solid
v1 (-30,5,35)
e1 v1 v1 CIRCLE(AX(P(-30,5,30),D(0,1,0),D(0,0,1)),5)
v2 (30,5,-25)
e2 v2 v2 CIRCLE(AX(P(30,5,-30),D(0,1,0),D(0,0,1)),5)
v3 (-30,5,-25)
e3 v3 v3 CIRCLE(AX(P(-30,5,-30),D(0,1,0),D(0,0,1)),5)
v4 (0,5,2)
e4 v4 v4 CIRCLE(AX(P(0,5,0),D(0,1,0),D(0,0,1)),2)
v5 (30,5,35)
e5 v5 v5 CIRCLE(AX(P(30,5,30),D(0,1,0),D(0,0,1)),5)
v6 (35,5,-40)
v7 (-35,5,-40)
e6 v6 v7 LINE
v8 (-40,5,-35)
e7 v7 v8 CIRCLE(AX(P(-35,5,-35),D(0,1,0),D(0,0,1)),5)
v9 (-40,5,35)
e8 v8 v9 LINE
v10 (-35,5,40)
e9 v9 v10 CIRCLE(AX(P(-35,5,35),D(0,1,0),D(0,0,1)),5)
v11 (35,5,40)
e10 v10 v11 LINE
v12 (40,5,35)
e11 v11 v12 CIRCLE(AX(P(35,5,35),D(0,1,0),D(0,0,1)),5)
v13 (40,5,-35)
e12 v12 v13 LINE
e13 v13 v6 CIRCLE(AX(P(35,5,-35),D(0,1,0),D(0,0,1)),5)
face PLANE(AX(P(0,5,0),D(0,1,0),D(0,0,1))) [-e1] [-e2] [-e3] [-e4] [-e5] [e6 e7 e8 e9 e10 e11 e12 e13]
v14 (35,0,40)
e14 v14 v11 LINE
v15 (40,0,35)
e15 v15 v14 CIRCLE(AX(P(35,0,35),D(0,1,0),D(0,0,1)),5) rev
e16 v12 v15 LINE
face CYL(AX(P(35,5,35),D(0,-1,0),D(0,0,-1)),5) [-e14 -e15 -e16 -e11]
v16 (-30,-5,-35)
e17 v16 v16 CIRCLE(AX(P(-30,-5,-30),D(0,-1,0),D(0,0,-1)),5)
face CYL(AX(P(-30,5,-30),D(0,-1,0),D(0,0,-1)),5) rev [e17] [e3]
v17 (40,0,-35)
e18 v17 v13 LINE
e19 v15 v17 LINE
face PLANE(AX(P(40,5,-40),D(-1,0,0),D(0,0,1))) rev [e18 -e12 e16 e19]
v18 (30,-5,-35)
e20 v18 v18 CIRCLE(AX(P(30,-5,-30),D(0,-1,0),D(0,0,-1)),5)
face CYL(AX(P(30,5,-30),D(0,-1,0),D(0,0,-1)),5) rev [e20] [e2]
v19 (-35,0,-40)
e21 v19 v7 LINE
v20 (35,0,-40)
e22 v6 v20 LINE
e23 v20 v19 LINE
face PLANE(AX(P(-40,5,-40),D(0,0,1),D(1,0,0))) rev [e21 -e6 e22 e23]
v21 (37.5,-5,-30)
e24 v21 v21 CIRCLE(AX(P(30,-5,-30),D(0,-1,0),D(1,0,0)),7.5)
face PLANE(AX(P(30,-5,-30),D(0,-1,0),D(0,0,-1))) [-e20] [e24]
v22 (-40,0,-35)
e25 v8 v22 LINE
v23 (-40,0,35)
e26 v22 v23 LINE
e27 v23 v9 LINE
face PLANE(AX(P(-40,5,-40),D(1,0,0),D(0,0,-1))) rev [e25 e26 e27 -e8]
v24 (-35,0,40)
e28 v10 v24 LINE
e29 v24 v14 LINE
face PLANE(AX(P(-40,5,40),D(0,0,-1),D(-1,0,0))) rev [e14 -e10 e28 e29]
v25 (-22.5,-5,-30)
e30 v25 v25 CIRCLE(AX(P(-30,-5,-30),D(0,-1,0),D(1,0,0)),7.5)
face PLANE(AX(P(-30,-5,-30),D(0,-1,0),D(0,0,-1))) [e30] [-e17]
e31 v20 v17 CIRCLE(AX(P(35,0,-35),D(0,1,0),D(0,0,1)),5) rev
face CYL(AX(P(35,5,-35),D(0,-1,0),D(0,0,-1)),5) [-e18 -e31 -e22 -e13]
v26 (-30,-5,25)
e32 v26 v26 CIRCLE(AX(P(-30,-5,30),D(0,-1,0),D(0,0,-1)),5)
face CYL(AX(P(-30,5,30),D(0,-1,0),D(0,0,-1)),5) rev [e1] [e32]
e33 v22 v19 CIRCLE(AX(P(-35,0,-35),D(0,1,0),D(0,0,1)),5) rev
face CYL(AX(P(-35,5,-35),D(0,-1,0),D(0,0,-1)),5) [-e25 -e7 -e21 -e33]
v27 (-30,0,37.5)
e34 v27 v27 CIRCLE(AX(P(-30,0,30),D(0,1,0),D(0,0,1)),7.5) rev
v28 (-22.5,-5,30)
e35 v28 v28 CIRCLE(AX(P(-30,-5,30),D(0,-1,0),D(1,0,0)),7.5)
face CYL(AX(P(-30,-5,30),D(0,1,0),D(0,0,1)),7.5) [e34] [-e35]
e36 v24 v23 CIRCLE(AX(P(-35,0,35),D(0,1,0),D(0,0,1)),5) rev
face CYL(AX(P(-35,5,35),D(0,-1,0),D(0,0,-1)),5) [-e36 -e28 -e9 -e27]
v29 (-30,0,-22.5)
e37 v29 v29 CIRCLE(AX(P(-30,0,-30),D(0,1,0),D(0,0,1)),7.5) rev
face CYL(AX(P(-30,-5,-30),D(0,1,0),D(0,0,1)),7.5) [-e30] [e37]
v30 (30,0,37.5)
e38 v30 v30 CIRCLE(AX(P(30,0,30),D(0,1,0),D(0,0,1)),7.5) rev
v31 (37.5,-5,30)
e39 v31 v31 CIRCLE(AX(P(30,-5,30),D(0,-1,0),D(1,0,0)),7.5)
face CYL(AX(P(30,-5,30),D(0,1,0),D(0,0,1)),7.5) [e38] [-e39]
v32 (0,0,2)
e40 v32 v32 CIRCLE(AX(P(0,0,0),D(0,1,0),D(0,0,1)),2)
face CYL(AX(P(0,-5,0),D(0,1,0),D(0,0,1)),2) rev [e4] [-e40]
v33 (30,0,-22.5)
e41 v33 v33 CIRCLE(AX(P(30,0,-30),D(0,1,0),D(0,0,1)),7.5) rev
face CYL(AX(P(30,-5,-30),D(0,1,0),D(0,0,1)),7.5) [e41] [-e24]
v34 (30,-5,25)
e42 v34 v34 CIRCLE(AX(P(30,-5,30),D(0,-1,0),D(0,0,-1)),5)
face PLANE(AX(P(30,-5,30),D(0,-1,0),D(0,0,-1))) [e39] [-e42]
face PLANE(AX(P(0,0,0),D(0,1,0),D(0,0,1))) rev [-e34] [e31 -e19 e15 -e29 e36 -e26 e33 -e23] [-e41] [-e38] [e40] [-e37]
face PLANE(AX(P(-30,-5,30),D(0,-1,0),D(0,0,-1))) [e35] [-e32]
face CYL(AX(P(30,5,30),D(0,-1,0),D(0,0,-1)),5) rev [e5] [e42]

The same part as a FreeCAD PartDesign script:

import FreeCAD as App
import Part
import Sketcher
Q = App.Units.Quantity


def edges_at(feature, points):
    """Names of the edges that pass closest to the given points."""
    edges = feature.Shape.Edges
    near = lambda p: min(range(len(edges)), key=lambda i: edges[i].distToShape(Part.Vertex(*p))[0])
    return sorted({f"Edge{near(p) + 1}" for p in points})

doc = App.newDocument("Part")
body = doc.addObject("PartDesign::Body", "Body")

sketch1 = body.newObject("Sketcher::SketchObject", "Sketch")
sketch1.AttachmentSupport = (doc.getObject("XZ_Plane"), [""])
sketch1.MapMode = "FlatFace"
sketch1.addGeometry(Part.LineSegment(App.Vector(-40, -40, 0), App.Vector(-40, 40, 0)), False)
sketch1.addGeometry(Part.LineSegment(App.Vector(-40, 40, 0), App.Vector(40, 40, 0)), False)
sketch1.addGeometry(Part.LineSegment(App.Vector(40, 40, 0), App.Vector(40, -40, 0)), False)
sketch1.addGeometry(Part.LineSegment(App.Vector(40, -40, 0), App.Vector(-40, -40, 0)), False)
sketch1.addGeometry(Part.Circle(App.Vector(-30, 30, 0), App.Vector(0, 0, 1), 5), False)
sketch1.addGeometry(Part.Circle(App.Vector(30, 30, 0), App.Vector(0, 0, 1), 5), False)
sketch1.addGeometry(Part.Circle(App.Vector(-30, -30, 0), App.Vector(0, 0, 1), 5), False)
sketch1.addGeometry(Part.Circle(App.Vector(30, -30, 0), App.Vector(0, 0, 1), 5), False)
sketch1.addConstraint(Sketcher.Constraint("Coincident", 0, 2, 1, 1))
sketch1.addConstraint(Sketcher.Constraint("Coincident", 1, 2, 2, 1))
sketch1.addConstraint(Sketcher.Constraint("Coincident", 2, 2, 3, 1))
sketch1.addConstraint(Sketcher.Constraint("Coincident", 3, 2, 0, 1))
sketch1.addConstraint(Sketcher.Constraint("Vertical", 0))
sketch1.addConstraint(Sketcher.Constraint("Horizontal", 1))
sketch1.addConstraint(Sketcher.Constraint("Vertical", 2))
sketch1.addConstraint(Sketcher.Constraint("Horizontal", 3))
sketch1.addConstraint(Sketcher.Constraint("Equal", 4, 5))
sketch1.addConstraint(Sketcher.Constraint("Equal", 5, 6))
sketch1.addConstraint(Sketcher.Constraint("Equal", 6, 7))
sketch1.addConstraint(Sketcher.Constraint("Symmetric", 5, 3, 6, 3, -1, 1))
sketch1.addConstraint(Sketcher.Constraint("Symmetric", 4, 3, 7, 3, -1, 1))
sketch1.addConstraint(Sketcher.Constraint("Symmetric", 0, 2, 2, 2, -1, 1))
sketch1.addConstraint(Sketcher.Constraint("Symmetric", 4, 3, 5, 3, -2))
sketch1.addConstraint(Sketcher.Constraint("Equal", 3, 0))
sketch1.addConstraint(Sketcher.Constraint("Diameter", 4, Q("10 mm")))
sketch1.addConstraint(Sketcher.Constraint("DistanceX", 1, 1, 1, 2, Q("80 mm")))
sketch1.addConstraint(Sketcher.Constraint("DistanceX", 4, 3, -1, 1, Q("30 mm")))
sketch1.addConstraint(Sketcher.Constraint("DistanceY", -1, 1, 4, 3, Q("30 mm")))
pad1 = body.newObject("PartDesign::Pad", "Pad")
pad1.Profile = sketch1
pad1.Length = 5
pad1.Reversed = True

sketch2 = body.newObject("Sketcher::SketchObject", "Sketch001")
sketch2.AttachmentSupport = (doc.getObject("XZ_Plane"), [""])
sketch2.MapMode = "FlatFace"
sketch2.addGeometry(Part.Circle(App.Vector(-30, -30, 0), App.Vector(0, 0, 1), 8), False)
sketch2.addGeometry(Part.Circle(App.Vector(-30, -30, 0), App.Vector(0, 0, 1), 5), False)
sketch2.addGeometry(Part.Circle(App.Vector(30, -30, 0), App.Vector(0, 0, 1), 8), False)
sketch2.addGeometry(Part.Circle(App.Vector(30, -30, 0), App.Vector(0, 0, 1), 5), False)
sketch2.addGeometry(Part.Circle(App.Vector(30, 30, 0), App.Vector(0, 0, 1), 8), False)
sketch2.addGeometry(Part.Circle(App.Vector(30, 30, 0), App.Vector(0, 0, 1), 5), False)
sketch2.addGeometry(Part.Circle(App.Vector(-30, 30, 0), App.Vector(0, 0, 1), 8), False)
sketch2.addGeometry(Part.Circle(App.Vector(-30, 30, 0), App.Vector(0, 0, 1), 5), False)
sketch2.addConstraint(Sketcher.Constraint("Coincident", 1, 3, 0, 3))
sketch2.addConstraint(Sketcher.Constraint("Coincident", 3, 3, 2, 3))
sketch2.addConstraint(Sketcher.Constraint("Coincident", 5, 3, 4, 3))
sketch2.addConstraint(Sketcher.Constraint("Coincident", 7, 3, 6, 3))
sketch2.addConstraint(Sketcher.Constraint("Equal", 0, 2))
sketch2.addConstraint(Sketcher.Constraint("Equal", 1, 3))
sketch2.addConstraint(Sketcher.Constraint("Equal", 2, 4))
sketch2.addConstraint(Sketcher.Constraint("Equal", 3, 5))
sketch2.addConstraint(Sketcher.Constraint("Equal", 4, 6))
sketch2.addConstraint(Sketcher.Constraint("Equal", 5, 7))
sketch2.addConstraint(Sketcher.Constraint("Symmetric", 0, 3, 4, 3, -1, 1))
sketch2.addConstraint(Sketcher.Constraint("Symmetric", 2, 3, 6, 3, -1, 1))
sketch2.addConstraint(Sketcher.Constraint("Symmetric", 0, 3, 2, 3, -2))
sketch2.addConstraint(Sketcher.Constraint("Diameter", 0, Q("15 mm")))
sketch2.addConstraint(Sketcher.Constraint("Diameter", 1, Q("10 mm")))
sketch2.addConstraint(Sketcher.Constraint("DistanceX", 0, 3, -1, 1, Q("30 mm")))
sketch2.addConstraint(Sketcher.Constraint("DistanceY", 0, 3, -1, 1, Q("30 mm")))
pad2 = body.newObject("PartDesign::Pad", "Pad001")
pad2.Profile = sketch2
pad2.Length = 5

sketch3 = body.newObject("Sketcher::SketchObject", "Sketch002")
sketch3.AttachmentSupport = (doc.getObject("XZ_Plane"), [""])
sketch3.MapMode = "FlatFace"
sketch3.AttachmentOffset = App.Placement(App.Vector(0, 0, -5), App.Rotation())
sketch3.addGeometry(Part.Circle(App.Vector(0, 0, 0), App.Vector(0, 0, 1), 2), False)
sketch3.addConstraint(Sketcher.Constraint("Coincident", 0, 3, -1, 1))
sketch3.addConstraint(Sketcher.Constraint("Diameter", 0, Q("4 mm")))
pocket1 = body.newObject("PartDesign::Pocket", "Pocket")
pocket1.Profile = sketch3
pocket1.Type = "ThroughAll"
pocket1.Reversed = True
doc.recompute()

fillet = body.newObject("PartDesign::Fillet", "Fillet")
fillet.Base = (pocket1, edges_at(pocket1, [
    (40, 2.5, 40),
    (-40, 2.5, 40),
    (-40, 2.5, -40),
    (40, 2.5, -40),
]))
fillet.Radius = 5

doc.recompute()
